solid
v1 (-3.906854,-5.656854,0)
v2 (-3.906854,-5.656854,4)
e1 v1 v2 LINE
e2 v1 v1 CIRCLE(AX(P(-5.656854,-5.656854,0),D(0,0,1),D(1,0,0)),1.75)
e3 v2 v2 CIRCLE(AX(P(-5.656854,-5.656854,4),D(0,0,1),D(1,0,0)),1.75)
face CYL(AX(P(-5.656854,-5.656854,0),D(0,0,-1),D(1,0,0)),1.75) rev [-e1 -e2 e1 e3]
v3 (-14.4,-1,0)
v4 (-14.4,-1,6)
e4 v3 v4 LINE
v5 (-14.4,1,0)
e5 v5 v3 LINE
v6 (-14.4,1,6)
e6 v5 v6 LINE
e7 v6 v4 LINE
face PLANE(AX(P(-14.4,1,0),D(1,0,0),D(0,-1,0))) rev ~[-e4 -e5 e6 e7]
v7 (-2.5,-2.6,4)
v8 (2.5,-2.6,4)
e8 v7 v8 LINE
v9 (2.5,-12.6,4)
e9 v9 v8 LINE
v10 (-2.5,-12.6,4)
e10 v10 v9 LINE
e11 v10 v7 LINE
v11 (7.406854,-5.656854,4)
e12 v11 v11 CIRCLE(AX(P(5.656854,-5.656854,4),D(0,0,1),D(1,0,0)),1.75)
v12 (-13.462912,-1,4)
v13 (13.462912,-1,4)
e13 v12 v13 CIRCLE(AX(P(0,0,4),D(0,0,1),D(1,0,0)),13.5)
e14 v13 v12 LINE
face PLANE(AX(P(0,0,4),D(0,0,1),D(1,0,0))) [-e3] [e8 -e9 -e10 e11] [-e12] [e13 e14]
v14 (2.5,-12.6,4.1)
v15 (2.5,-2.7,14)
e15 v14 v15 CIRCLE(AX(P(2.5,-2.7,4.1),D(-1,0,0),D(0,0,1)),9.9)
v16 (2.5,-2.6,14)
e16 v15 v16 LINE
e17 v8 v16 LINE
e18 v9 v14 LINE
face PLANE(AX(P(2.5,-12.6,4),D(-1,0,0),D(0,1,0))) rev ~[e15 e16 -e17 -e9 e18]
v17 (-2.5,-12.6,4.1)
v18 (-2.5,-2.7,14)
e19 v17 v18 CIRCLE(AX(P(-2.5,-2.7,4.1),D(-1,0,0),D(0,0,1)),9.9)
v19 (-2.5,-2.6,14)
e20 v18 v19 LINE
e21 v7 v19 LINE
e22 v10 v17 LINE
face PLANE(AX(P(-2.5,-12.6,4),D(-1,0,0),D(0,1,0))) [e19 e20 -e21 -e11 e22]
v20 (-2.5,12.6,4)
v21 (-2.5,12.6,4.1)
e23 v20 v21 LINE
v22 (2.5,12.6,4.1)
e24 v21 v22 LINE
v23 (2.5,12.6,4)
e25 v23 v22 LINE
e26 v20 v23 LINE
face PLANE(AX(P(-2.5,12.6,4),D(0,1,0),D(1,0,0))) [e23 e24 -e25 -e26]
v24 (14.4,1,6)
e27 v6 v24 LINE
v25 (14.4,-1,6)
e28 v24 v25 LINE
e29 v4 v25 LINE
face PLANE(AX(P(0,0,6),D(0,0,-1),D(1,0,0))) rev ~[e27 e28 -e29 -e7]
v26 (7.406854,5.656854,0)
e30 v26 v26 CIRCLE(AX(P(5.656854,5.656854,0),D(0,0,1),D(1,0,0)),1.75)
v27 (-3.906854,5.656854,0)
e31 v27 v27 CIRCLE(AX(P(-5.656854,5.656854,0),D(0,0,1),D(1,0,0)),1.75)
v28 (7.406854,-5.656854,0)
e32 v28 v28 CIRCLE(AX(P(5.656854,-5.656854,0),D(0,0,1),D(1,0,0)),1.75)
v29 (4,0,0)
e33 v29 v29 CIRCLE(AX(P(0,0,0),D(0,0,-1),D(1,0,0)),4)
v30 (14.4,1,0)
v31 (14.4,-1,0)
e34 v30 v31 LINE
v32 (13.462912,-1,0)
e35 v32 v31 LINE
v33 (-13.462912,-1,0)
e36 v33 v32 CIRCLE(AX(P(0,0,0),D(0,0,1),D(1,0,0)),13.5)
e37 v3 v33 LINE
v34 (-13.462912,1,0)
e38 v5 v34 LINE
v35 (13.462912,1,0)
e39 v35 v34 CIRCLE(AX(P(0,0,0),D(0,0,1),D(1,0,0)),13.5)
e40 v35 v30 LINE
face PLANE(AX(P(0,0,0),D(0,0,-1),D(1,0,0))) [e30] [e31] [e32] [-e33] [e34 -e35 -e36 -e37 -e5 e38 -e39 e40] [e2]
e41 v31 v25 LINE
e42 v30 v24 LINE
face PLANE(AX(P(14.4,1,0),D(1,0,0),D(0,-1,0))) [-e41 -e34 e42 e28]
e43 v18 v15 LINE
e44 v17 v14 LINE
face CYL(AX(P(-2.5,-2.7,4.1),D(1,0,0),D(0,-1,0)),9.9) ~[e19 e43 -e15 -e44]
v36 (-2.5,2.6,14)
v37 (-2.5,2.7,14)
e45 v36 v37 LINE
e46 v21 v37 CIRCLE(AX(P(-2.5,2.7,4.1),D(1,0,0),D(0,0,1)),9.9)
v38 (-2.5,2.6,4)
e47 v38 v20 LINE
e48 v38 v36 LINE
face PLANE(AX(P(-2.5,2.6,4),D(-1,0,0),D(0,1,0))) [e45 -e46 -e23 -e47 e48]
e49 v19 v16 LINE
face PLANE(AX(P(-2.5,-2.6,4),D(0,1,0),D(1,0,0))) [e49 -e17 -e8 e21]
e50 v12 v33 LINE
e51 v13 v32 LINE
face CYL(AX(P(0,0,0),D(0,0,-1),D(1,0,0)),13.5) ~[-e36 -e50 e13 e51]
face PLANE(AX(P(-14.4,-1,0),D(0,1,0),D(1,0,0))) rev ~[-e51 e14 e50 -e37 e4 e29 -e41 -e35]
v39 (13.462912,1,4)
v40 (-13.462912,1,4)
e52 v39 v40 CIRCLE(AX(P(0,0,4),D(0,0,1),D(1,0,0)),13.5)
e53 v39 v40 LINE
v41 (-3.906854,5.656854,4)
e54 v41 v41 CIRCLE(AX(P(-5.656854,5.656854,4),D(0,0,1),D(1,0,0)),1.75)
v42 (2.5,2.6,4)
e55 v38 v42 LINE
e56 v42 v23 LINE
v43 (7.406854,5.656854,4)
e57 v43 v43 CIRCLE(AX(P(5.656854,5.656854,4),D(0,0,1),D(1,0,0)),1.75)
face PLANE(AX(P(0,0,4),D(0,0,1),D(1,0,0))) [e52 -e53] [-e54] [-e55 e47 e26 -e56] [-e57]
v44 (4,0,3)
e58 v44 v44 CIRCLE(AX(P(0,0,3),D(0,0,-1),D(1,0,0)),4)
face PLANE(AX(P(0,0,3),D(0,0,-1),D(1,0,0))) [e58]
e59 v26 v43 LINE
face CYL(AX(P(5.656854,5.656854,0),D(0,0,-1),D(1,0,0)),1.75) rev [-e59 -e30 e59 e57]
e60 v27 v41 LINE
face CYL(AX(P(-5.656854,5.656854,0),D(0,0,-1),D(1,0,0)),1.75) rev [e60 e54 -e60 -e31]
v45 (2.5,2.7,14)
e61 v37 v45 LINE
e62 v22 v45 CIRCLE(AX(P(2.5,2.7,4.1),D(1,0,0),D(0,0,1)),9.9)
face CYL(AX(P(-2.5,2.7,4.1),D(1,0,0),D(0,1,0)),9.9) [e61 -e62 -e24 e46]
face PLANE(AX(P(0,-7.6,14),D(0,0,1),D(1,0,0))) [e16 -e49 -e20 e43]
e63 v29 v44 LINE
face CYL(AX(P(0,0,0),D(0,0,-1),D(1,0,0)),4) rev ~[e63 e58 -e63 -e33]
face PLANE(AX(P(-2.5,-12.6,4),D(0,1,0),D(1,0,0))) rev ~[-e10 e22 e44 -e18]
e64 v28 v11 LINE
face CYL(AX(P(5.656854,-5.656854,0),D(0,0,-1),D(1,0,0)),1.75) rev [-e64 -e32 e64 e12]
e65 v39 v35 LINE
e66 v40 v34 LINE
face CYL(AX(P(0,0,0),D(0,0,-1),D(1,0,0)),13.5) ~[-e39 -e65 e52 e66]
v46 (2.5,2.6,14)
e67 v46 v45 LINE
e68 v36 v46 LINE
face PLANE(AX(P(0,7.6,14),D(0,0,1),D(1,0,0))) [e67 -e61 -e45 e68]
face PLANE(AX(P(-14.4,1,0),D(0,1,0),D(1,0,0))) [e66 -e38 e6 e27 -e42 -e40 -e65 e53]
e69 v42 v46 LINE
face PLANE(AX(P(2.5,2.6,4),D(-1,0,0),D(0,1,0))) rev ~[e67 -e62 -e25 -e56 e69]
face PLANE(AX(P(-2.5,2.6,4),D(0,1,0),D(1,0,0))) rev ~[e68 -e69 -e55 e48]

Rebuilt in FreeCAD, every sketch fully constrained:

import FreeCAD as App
import Part
import Sketcher
from FreeCAD import Vector


def edges_at(feature, points):
    """Names of the edges that pass closest to the given points."""
    edges = feature.Shape.Edges
    near = lambda p: min(range(len(edges)), key=lambda i: edges[i].distToShape(Part.Vertex(*p))[0])
    return sorted({f"Edge{near(p) + 1}" for p in points})


def add_polygon(sketch, points):
    """Adds a closed chain of lines whose ends are joined by coincident constraints."""
    first, n = sketch.GeometryCount, len(points)
    for a, b in zip(points, points[1:] + points[:1]):
        sketch.addGeometry(Part.LineSegment(App.Vector(*a, 0), App.Vector(*b, 0)), False)
    for i in range(n):
        sketch.addConstraint(Sketcher.Constraint("Coincident", first + i, 2, first + (i + 1) % n, 1))

doc = App.newDocument("Part")
body = doc.addObject("PartDesign::Body", "Body")

sketch1 = body.newObject("Sketcher::SketchObject", "Sketch")
sketch1.AttachmentSupport = (doc.getObject("XY_Plane"), [""])
sketch1.MapMode = "FlatFace"
sketch1.addGeometry([
    Part.Circle(Vector(0, 0, 0), Vector(0, 0, 1), 13.5),
    Part.Circle(Vector(-5.7, -5.7, 0), Vector(0, 0, 1), 1.8),
    Part.Circle(Vector(5.7, -5.7, 0), Vector(0, 0, 1), 1.8),
    Part.Circle(Vector(-5.7, 5.7, 0), Vector(0, 0, 1), 1.8),
    Part.Circle(Vector(5.7, 5.7, 0), Vector(0, 0, 1), 1.8),
], False)
sketch1.addConstraint([
    Sketcher.Constraint("Coincident", 0, 3, -1, 1),
    Sketcher.Constraint("Equal", 1, 2),
    Sketcher.Constraint("Equal", 2, 3),
    Sketcher.Constraint("Equal", 3, 4),
    Sketcher.Constraint("Symmetric", 2, 3, 3, 3, -1, 1),
    Sketcher.Constraint("Symmetric", 1, 3, 4, 3, -1, 1),
    Sketcher.Constraint("Symmetric", 1, 3, 2, 3, -2),
    Sketcher.Constraint("Diameter", 0, 27.0),
    Sketcher.Constraint("Diameter", 1, 3.5),
    Sketcher.Constraint("DistanceX", 1, 3, -1, 1, 5.656854),
    Sketcher.Constraint("DistanceY", 1, 3, -1, 1, 5.656854),
])
pad1 = body.newObject("PartDesign::Pad", "Pad")
pad1.Profile = sketch1
pad1.Length = 4

sketch2 = body.newObject("Sketcher::SketchObject", "Sketch001")
sketch2.AttachmentSupport = (doc.getObject("XY_Plane"), [""])
sketch2.MapMode = "FlatFace"
add_polygon(sketch2, [(-14.4, -1), (-14.4, 1), (14.4, 1), (14.4, -1)])
sketch2.addConstraint([
    Sketcher.Constraint("Vertical", 0),
    Sketcher.Constraint("Horizontal", 1),
    Sketcher.Constraint("Vertical", 2),
    Sketcher.Constraint("Horizontal", 3),
    Sketcher.Constraint("Symmetric", 0, 2, 2, 2, -1, 1),
    Sketcher.Constraint("DistanceY", 0, 1, 0, 2, 2.0),
    Sketcher.Constraint("DistanceX", 1, 1, 1, 2, 28.8),
])
pad2 = body.newObject("PartDesign::Pad", "Pad001")
pad2.Profile = sketch2
pad2.Length = 6

sketch3 = body.newObject("Sketcher::SketchObject", "Sketch002")
sketch3.AttachmentSupport = (doc.getObject("XY_Plane"), [""])
sketch3.MapMode = "FlatFace"
sketch3.addGeometry(Part.Circle(Vector(0, 0, 0), Vector(0, 0, 1), 4), False)
sketch3.addConstraint([
    Sketcher.Constraint("Coincident", 0, 3, -1, 1),
    Sketcher.Constraint("Diameter", 0, 8.0),
])
pocket1 = body.newObject("PartDesign::Pocket", "Pocket")
pocket1.Profile = sketch3
pocket1.Length = 3
pocket1.Reversed = True

sketch4 = body.newObject("Sketcher::SketchObject", "Sketch003")
sketch4.AttachmentSupport = (doc.getObject("XY_Plane"), [""])
sketch4.MapMode = "FlatFace"
sketch4.AttachmentOffset = App.Placement(Vector(0, 0, 4), App.Rotation())
add_polygon(sketch4, [(-2, -3), (-2, -13), (2, -13), (2, -3)])
add_polygon(sketch4, [(-2, 13), (-2, 3), (2, 3), (2, 13)])
sketch4.addConstraint([
    Sketcher.Constraint("Vertical", 0),
    Sketcher.Constraint("Horizontal", 1),
    Sketcher.Constraint("Vertical", 2),
    Sketcher.Constraint("Horizontal", 3),
    Sketcher.Constraint("Vertical", 4),
    Sketcher.Constraint("Horizontal", 5),
    Sketcher.Constraint("Vertical", 6),
    Sketcher.Constraint("Horizontal", 7),
    Sketcher.Constraint("Symmetric", 2, 2, 4, 2, -1, 1),
    Sketcher.Constraint("Symmetric", 0, 2, 6, 2, -1, 1),
    Sketcher.Constraint("Vertical", 3, 2, 4, 2),
    Sketcher.Constraint("DistanceX", 1, 1, 1, 2, 5.0),
    Sketcher.Constraint("DistanceY", 0, 2, 0, 1, 10.0),
    Sketcher.Constraint("DistanceY", 0, 2, -1, 1, 12.6),
])
pad3 = body.newObject("PartDesign::Pad", "Pad002")
pad3.Profile = sketch4
pad3.Length = 10
doc.recompute()

fillet = body.newObject("PartDesign::Fillet", "Fillet")
fillet.Base = (pad3, edges_at(pad3, [(0, 12.6, 14), (0, -12.6, 14)]))
fillet.Radius = 9.9

doc.recompute()
